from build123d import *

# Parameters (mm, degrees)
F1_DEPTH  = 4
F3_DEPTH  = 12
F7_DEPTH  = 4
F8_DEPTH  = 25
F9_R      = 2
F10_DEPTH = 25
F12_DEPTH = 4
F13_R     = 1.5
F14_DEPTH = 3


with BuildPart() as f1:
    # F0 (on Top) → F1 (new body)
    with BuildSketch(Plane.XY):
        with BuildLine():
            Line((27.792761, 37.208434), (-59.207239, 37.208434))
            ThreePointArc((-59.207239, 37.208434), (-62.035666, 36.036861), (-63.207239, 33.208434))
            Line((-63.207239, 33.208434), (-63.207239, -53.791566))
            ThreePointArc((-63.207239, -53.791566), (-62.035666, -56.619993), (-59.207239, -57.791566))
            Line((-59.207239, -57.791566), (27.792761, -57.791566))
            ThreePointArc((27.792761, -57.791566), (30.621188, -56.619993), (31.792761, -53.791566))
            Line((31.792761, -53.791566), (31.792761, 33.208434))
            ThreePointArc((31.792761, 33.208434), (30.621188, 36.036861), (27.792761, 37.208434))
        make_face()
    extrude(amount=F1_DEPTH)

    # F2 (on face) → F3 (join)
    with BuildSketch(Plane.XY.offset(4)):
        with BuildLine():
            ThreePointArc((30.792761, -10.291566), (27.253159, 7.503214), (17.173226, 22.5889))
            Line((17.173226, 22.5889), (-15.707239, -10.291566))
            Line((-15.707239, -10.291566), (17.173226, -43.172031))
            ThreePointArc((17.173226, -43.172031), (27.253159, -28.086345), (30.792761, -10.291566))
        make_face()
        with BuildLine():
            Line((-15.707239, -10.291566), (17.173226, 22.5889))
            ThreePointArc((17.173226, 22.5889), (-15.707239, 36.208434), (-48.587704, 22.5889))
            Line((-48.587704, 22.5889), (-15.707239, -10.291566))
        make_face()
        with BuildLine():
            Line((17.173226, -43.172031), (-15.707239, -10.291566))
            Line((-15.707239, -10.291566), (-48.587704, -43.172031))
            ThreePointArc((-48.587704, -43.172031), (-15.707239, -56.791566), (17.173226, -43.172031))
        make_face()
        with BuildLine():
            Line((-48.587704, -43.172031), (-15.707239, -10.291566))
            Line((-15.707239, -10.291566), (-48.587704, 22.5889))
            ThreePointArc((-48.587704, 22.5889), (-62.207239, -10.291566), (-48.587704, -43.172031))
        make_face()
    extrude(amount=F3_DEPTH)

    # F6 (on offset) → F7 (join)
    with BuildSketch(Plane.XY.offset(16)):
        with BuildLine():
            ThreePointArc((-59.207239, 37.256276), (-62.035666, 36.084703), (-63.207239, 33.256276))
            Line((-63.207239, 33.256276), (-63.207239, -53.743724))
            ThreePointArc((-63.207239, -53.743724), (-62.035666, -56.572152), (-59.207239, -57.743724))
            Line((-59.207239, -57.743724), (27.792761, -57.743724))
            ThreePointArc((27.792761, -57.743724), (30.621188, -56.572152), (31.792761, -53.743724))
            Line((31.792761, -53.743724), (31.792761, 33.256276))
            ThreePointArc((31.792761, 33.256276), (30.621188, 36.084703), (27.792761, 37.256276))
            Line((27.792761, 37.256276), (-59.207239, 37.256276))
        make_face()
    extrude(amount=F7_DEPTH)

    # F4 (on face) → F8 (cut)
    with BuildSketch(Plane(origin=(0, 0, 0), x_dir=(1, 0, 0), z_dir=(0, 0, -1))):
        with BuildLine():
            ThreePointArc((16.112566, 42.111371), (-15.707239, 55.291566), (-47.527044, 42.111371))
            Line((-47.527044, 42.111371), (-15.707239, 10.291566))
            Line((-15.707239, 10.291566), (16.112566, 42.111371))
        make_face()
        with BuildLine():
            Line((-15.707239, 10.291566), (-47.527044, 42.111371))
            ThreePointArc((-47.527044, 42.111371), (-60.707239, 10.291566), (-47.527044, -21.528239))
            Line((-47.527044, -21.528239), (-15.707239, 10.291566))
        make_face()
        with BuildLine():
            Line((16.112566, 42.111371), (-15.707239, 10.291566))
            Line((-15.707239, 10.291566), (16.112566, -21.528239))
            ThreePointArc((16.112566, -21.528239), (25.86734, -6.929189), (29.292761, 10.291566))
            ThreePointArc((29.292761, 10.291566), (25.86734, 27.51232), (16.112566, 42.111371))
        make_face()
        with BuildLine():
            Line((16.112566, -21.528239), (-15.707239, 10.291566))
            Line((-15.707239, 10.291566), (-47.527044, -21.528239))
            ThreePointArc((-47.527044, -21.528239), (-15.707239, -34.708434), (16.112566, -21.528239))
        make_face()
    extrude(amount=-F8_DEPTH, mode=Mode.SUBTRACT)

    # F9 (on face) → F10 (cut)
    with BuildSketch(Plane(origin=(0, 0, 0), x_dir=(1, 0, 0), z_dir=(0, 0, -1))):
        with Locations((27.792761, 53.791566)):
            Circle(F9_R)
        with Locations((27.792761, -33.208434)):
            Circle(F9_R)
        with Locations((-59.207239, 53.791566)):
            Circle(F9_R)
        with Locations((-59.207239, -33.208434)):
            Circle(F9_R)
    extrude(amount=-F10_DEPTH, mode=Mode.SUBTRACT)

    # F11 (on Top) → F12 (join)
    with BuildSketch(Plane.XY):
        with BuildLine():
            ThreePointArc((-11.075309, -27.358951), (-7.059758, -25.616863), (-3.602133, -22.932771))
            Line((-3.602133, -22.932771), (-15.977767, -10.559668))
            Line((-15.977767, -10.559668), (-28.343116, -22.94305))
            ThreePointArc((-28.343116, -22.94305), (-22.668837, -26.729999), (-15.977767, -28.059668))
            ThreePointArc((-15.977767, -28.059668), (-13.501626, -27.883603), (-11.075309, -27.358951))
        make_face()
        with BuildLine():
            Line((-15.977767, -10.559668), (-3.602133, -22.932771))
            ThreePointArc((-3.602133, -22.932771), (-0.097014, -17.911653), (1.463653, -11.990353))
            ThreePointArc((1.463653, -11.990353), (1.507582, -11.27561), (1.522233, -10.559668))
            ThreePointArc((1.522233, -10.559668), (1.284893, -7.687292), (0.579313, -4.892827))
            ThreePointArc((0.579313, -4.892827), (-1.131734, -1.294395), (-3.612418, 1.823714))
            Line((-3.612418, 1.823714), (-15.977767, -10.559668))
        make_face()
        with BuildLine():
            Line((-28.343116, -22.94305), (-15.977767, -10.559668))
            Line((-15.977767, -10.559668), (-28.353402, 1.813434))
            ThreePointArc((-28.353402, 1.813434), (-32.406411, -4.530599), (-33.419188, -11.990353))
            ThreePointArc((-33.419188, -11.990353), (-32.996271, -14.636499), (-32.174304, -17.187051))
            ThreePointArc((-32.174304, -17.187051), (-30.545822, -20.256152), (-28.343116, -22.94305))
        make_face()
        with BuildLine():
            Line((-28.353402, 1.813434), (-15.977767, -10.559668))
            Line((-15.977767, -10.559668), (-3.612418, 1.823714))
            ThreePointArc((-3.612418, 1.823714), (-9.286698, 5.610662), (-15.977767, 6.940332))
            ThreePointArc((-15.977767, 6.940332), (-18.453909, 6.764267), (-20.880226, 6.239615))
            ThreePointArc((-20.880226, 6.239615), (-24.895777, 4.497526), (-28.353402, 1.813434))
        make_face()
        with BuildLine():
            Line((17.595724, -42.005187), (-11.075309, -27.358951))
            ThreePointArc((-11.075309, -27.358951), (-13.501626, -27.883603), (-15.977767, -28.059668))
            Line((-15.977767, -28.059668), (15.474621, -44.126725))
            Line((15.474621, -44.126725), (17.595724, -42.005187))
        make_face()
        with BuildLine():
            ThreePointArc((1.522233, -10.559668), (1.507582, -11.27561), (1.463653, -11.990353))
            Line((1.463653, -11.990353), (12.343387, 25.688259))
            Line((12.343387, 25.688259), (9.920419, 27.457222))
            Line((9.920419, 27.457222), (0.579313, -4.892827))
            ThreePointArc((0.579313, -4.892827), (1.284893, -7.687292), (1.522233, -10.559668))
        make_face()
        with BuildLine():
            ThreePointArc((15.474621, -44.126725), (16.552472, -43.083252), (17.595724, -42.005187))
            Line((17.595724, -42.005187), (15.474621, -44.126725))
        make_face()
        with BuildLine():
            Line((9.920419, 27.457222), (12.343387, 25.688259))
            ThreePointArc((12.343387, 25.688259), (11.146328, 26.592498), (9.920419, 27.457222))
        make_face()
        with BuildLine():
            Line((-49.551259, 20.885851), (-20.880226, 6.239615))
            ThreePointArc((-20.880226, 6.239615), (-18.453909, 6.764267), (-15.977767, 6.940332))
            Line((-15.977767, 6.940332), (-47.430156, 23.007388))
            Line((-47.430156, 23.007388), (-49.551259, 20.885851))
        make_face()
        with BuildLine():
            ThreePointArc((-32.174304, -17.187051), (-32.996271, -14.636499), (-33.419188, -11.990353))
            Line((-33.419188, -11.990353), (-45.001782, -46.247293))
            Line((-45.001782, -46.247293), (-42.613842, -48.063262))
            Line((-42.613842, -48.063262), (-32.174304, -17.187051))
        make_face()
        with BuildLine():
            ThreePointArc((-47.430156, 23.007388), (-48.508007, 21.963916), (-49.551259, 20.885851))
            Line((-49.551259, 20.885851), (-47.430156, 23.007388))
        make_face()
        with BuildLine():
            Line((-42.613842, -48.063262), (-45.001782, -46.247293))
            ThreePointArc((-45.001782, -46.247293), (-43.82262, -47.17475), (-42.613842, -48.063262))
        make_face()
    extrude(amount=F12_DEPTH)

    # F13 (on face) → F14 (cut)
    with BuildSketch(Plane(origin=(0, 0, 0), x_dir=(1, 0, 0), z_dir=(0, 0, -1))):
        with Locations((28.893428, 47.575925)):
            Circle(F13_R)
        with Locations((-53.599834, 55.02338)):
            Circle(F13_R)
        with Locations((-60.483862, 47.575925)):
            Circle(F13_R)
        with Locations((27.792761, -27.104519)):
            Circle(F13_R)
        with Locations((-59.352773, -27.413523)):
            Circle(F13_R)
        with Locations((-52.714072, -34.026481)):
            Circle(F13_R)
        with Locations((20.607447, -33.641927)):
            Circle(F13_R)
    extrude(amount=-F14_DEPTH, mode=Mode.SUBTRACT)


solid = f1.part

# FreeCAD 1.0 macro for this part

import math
import FreeCAD as App
import Part
import Sketcher

doc = App.newDocument("Part")
body = doc.addObject("PartDesign::Body", "Body")

# Sketch on XY plane
sketch1 = body.newObject("Sketcher::SketchObject", "Sketch")
sketch1.AttachmentSupport = (doc.getObject("XY_Plane"), [""])
sketch1.MapMode = "FlatFace"
sketch1.addGeometry([
    Part.LineSegment(App.Vector(27.792761, 37.208434, 0), App.Vector(-59.207239, 37.208434, 0)),  # 0
    Part.ArcOfCircle(Part.Circle(App.Vector(-59.207239, 33.208434, 0), App.Vector(0, 0, 1), 4), math.radians(90.000006), math.radians(179.999994)),  # 1
    Part.LineSegment(App.Vector(-63.207239, 33.208434, 0), App.Vector(-63.207239, -53.791566, 0)),  # 2
    Part.ArcOfCircle(Part.Circle(App.Vector(-59.207239, -53.791566, 0), App.Vector(0, 0, 1), 4), math.radians(-179.999994), math.radians(-90.000006)),  # 3
    Part.LineSegment(App.Vector(-59.207239, -57.791566, 0), App.Vector(27.792761, -57.791566, 0)),  # 4
    Part.ArcOfCircle(Part.Circle(App.Vector(27.792761, -53.791566, 0), App.Vector(0, 0, 1), 4), math.radians(-89.999994), math.radians(-0.000006)),  # 5
    Part.LineSegment(App.Vector(31.792761, -53.791566, 0), App.Vector(31.792761, 33.208434, 0)),  # 6
    Part.ArcOfCircle(Part.Circle(App.Vector(27.792761, 33.208434, 0), App.Vector(0, 0, 1), 4), math.radians(0.000006), math.radians(89.999994)),  # 7
], False)
sketch1.addConstraint([
    Sketcher.Constraint("Tangent", 0, 2, 1, 1),
    Sketcher.Constraint("Tangent", 1, 2, 2, 1),
    Sketcher.Constraint("Tangent", 2, 2, 3, 1),
    Sketcher.Constraint("Tangent", 3, 2, 4, 1),
    Sketcher.Constraint("Tangent", 4, 2, 5, 1),
    Sketcher.Constraint("Tangent", 5, 2, 6, 1),
    Sketcher.Constraint("Tangent", 6, 2, 7, 1),
    Sketcher.Constraint("Tangent", 7, 2, 0, 1),
    Sketcher.Constraint("Horizontal", 0),
    Sketcher.Constraint("Vertical", 2),
    Sketcher.Constraint("Horizontal", 4),
    Sketcher.Constraint("Vertical", 6),
    Sketcher.Constraint("Equal", 1, 3),
    Sketcher.Constraint("Equal", 3, 5),
    Sketcher.Constraint("Equal", 5, 7),
    Sketcher.Constraint("Equal", 4, 2),
    Sketcher.Constraint("Radius", 1, 4.0),
    Sketcher.Constraint("DistanceX", 0, 2, 0, 1, 87.0),
    Sketcher.Constraint("DistanceX", 1, 3, -1, 1, 59.207239),
    Sketcher.Constraint("DistanceY", -1, 1, 1, 3, 33.208434),
])
pad1 = body.newObject("PartDesign::Pad", "Pad")
pad1.Profile = sketch1
pad1.Length = 4

# Sketch on XY plane
sketch2 = body.newObject("Sketcher::SketchObject", "Sketch001")
sketch2.AttachmentSupport = (doc.getObject("XY_Plane"), [""])
sketch2.MapMode = "FlatFace"
sketch2.AttachmentOffset = App.Placement(App.Vector(0, 0, 4), App.Rotation())
sketch2.addGeometry([
    Part.ArcOfCircle(Part.Circle(App.Vector(-15.707242, -10.291567, 0), App.Vector(0, 0, 1), 46.500003), math.radians(0.000001), math.radians(44.999999)),  # 0
    Part.ArcOfCircle(Part.Circle(App.Vector(-15.707239, -10.291567, 0), App.Vector(0, 0, 1), 46.500001), math.radians(45.000002), math.radians(134.999998)),  # 1
    Part.ArcOfCircle(Part.Circle(App.Vector(-15.707239, -10.291566, 0), App.Vector(0, 0, 1), 46.5), math.radians(134.999999), math.radians(225.000001)),  # 2
    Part.ArcOfCircle(Part.Circle(App.Vector(-15.707239, -10.291568, 0), App.Vector(0, 0, 1), 46.499998), math.radians(-135.000001), math.radians(-44.999999)),  # 3
    Part.ArcOfCircle(Part.Circle(App.Vector(-15.707242, -10.291564, 0), App.Vector(0, 0, 1), 46.500003), math.radians(-44.999999), math.radians(-0.000002)),  # 4
], False)
sketch2.addConstraint([
    Sketcher.Constraint("Tangent", 0, 2, 1, 1),
    Sketcher.Constraint("Tangent", 1, 2, 2, 1),
    Sketcher.Constraint("Tangent", 2, 2, 3, 1),
    Sketcher.Constraint("Tangent", 3, 2, 4, 1),
    Sketcher.Constraint("Tangent", 4, 2, 0, 1),
    Sketcher.Constraint("Coincident", 2, 3, 0, 3),
    Sketcher.Constraint("Horizontal", 0, 2, 1, 2),
    Sketcher.Constraint("Horizontal", 2, 2, 3, 2),
    Sketcher.Constraint("Horizontal", 3, 3, 4, 2),
    Sketcher.Constraint("Vertical", 1, 2, 2, 2),
    Sketcher.Constraint("Radius", 1, 46.500001),
    Sketcher.Constraint("DistanceY", -1, 1, 0, 2, 22.5889),
    Sketcher.Constraint("DistanceX", 0, 3, -1, 1, 15.707242),
    Sketcher.Constraint("DistanceY", 2, 2, -1, 1, 43.172031),
])
pad2 = body.newObject("PartDesign::Pad", "Pad001")
pad2.Profile = sketch2
pad2.Length = 12

# Sketch on XY plane
sketch3 = body.newObject("Sketcher::SketchObject", "Sketch002")
sketch3.AttachmentSupport = (doc.getObject("XY_Plane"), [""])
sketch3.MapMode = "FlatFace"
sketch3.AttachmentOffset = App.Placement(App.Vector(0, 0, 16), App.Rotation())
sketch3.addGeometry([
    Part.ArcOfCircle(Part.Circle(App.Vector(-59.207239, 33.256276, 0), App.Vector(0, 0, 1), 4), math.radians(90.000006), math.radians(179.999994)),  # 0
    Part.LineSegment(App.Vector(-63.207239, 33.256276, 0), App.Vector(-63.207239, -53.743724, 0)),  # 1
    Part.ArcOfCircle(Part.Circle(App.Vector(-59.20724, -53.743725, 0), App.Vector(0, 0, 1), 3.999999), math.radians(179.999982), math.radians(270.000018)),  # 2
    Part.LineSegment(App.Vector(-59.207239, -57.743724, 0), App.Vector(27.792761, -57.743724, 0)),  # 3
    Part.ArcOfCircle(Part.Circle(App.Vector(27.792762, -53.743725, 0), App.Vector(0, 0, 1), 3.999999), math.radians(-90.000018), math.radians(0.000018)),  # 4
    Part.LineSegment(App.Vector(31.792761, -53.743724, 0), App.Vector(31.792761, 33.256276, 0)),  # 5
    Part.ArcOfCircle(Part.Circle(App.Vector(27.792761, 33.256276, 0), App.Vector(0, 0, 1), 4), math.radians(0.000006), math.radians(89.999994)),  # 6
    Part.LineSegment(App.Vector(27.792761, 37.256276, 0), App.Vector(-59.207239, 37.256276, 0)),  # 7
], False)
sketch3.addConstraint([
    Sketcher.Constraint("Tangent", 0, 2, 1, 1),
    Sketcher.Constraint("Tangent", 1, 2, 2, 1),
    Sketcher.Constraint("Tangent", 2, 2, 3, 1),
    Sketcher.Constraint("Tangent", 3, 2, 4, 1),
    Sketcher.Constraint("Tangent", 4, 2, 5, 1),
    Sketcher.Constraint("Tangent", 5, 2, 6, 1),
    Sketcher.Constraint("Tangent", 6, 2, 7, 1),
    Sketcher.Constraint("Tangent", 7, 2, 0, 1),
    Sketcher.Constraint("Vertical", 1),
    Sketcher.Constraint("Horizontal", 3),
    Sketcher.Constraint("Vertical", 5),
    Sketcher.Constraint("Horizontal", 7),
    Sketcher.Constraint("Equal", 0, 2),
    Sketcher.Constraint("Equal", 2, 4),
    Sketcher.Constraint("Equal", 4, 6),
    Sketcher.Constraint("Equal", 7, 1),
    Sketcher.Constraint("Radius", 0, 4.0),
    Sketcher.Constraint("DistanceX", 3, 1, 3, 2, 87.0),
    Sketcher.Constraint("DistanceX", 0, 3, -1, 1, 59.207239),
    Sketcher.Constraint("DistanceY", -1, 1, 0, 3, 33.256276),
])
pad3 = body.newObject("PartDesign::Pad", "Pad002")
pad3.Profile = sketch3
pad3.Length = 4

# Sketch on XY plane
sketch4 = body.newObject("Sketcher::SketchObject", "Sketch003")
sketch4.AttachmentSupport = (doc.getObject("XY_Plane"), [""])
sketch4.MapMode = "FlatFace"
sketch4.addGeometry([
    Part.ArcOfCircle(Part.Circle(App.Vector(-15.707239, -10.291567, 0), App.Vector(0, 0, 1), 44.999999), math.radians(-135.000001), math.radians(-44.999999)),  # 0
    Part.ArcOfCircle(Part.Circle(App.Vector(-15.70724, -10.291566, 0), App.Vector(0, 0, 1), 44.999999), math.radians(134.999999), math.radians(225.000001)),  # 1
    Part.ArcOfCircle(Part.Circle(App.Vector(-15.707239, -10.291565, 0), App.Vector(0, 0, 1), 44.999999), math.radians(44.999999), math.radians(135.000001)),  # 2
    Part.ArcOfCircle(Part.Circle(App.Vector(-15.707235, -10.291564, 0), App.Vector(0, 0, 1), 44.999996), math.radians(-0.000002), math.radians(45.000003)),  # 3
    Part.ArcOfCircle(Part.Circle(App.Vector(-15.707239, -10.291566, 0), App.Vector(0, 0, 1), 45), math.radians(-45), math.radians(-0.000001)),  # 4
], False)
sketch4.addConstraint([
    Sketcher.Constraint("Tangent", 0, 1, 1, 2),
    Sketcher.Constraint("Tangent", 1, 1, 2, 2),
    Sketcher.Constraint("Tangent", 2, 1, 3, 2),
    Sketcher.Constraint("Tangent", 3, 1, 4, 2),
    Sketcher.Constraint("Tangent", 4, 1, 0, 2),
    Sketcher.Constraint("Coincident", 2, 3, 0, 3),
    Sketcher.Constraint("Horizontal", 1, 1, 2, 1),
    Sketcher.Constraint("Horizontal", 4, 3, 3, 1),
    Sketcher.Constraint("Horizontal", 0, 1, 4, 1),
    Sketcher.Constraint("Vertical", 0, 1, 1, 1),
    Sketcher.Constraint("Radius", 0, 44.999999),
    Sketcher.Constraint("DistanceX", 3, 3, 2, 1, 31.819801),
    Sketcher.Constraint("DistanceX", 0, 3, -1, 1, 15.707239),
    Sketcher.Constraint("DistanceY", 0, 1, -1, 1, 42.111371),
])
pocket1 = body.newObject("PartDesign::Pocket", "Pocket")
pocket1.Profile = sketch4
pocket1.Length = 25
pocket1.Reversed = True

# Sketch on XY plane
sketch5 = body.newObject("Sketcher::SketchObject", "Sketch004")
sketch5.AttachmentSupport = (doc.getObject("XY_Plane"), [""])
sketch5.MapMode = "FlatFace"
sketch5.addGeometry([
    Part.Circle(App.Vector(27.792761, -53.791566, 0), App.Vector(0, 0, 1), 2),
    Part.Circle(App.Vector(27.792761, 33.208434, 0), App.Vector(0, 0, 1), 2),
    Part.Circle(App.Vector(-59.207239, -53.791566, 0), App.Vector(0, 0, 1), 2),
    Part.Circle(App.Vector(-59.207239, 33.208434, 0), App.Vector(0, 0, 1), 2),
], False)
sketch5.addConstraint([
    Sketcher.Constraint("Equal", 0, 1),
    Sketcher.Constraint("Equal", 1, 2),
    Sketcher.Constraint("Equal", 2, 3),
    Sketcher.Constraint("Horizontal", 0, 3, 2, 3),
    Sketcher.Constraint("Horizontal", 1, 3, 3, 3),
    Sketcher.Constraint("Vertical", 0, 3, 1, 3),
    Sketcher.Constraint("Vertical", 2, 3, 3, 3),
    Sketcher.Constraint("Diameter", 0, 4.0),
    Sketcher.Constraint("DistanceY", 0, 3, 1, 3, 87.0),
    Sketcher.Constraint("DistanceX", 2, 3, 0, 3, 87.0),
    Sketcher.Constraint("DistanceX", -1, 1, 0, 3, 27.792761),
    Sketcher.Constraint("DistanceY", 0, 3, -1, 1, 53.791566),
])
pocket2 = body.newObject("PartDesign::Pocket", "Pocket001")
pocket2.Profile = sketch5
pocket2.Length = 25
pocket2.Reversed = True

# Sketch on XY plane
sketch6 = body.newObject("Sketcher::SketchObject", "Sketch005")
sketch6.AttachmentSupport = (doc.getObject("XY_Plane"), [""])
sketch6.MapMode = "FlatFace"
sketch6.addGeometry([
    Part.ArcOfCircle(Part.Circle(App.Vector(-15.977764, -10.559673, 0), App.Vector(0, 0, 1), 17.499994), math.radians(-73.731416), math.radians(-44.994134)),  # 0
    Part.ArcOfCircle(Part.Circle(App.Vector(-15.977764, -10.559669, 0), App.Vector(0, 0, 1), 17.499997), math.radians(-44.994143), math.radians(-4.689356)),  # 1
    Part.LineSegment(App.Vector(1.463653, -11.990353, 0), App.Vector(12.343387, 25.688259, 0)),  # 2
    Part.ArcOfCircle(Part.Circle(App.Vector(-15.977783, -10.559693, 0), App.Vector(0, 0, 1), 46.00003), math.radians(51.998856), math.radians(55.736198)),  # 3
    Part.LineSegment(App.Vector(9.920419, 27.457222, 0), App.Vector(0.579313, -4.892827, 0)),  # 4
    Part.ArcOfCircle(Part.Circle(App.Vector(-15.977782, -10.559676, 0), App.Vector(0, 0, 1), 17.500017), math.radians(18.894078), math.radians(45.041731)),  # 5
    Part.ArcOfCircle(Part.Circle(App.Vector(-15.977771, -10.559677, 0), App.Vector(0, 0, 1), 17.500009), math.radians(45.041761), math.radians(89.999988)),  # 6
    Part.LineSegment(App.Vector(-15.977767, 6.940332, 0), App.Vector(-47.430156, 23.007388, 0)),  # 7
    Part.ArcOfCircle(Part.Circle(App.Vector(-15.977831, -10.559606, 0), App.Vector(0, 0, 1), 45.999911), math.radians(133.137186), math.radians(136.874536)),  # 8
    Part.LineSegment(App.Vector(-49.551259, 20.885851, 0), App.Vector(-20.880226, 6.239615, 0)),  # 9
    Part.ArcOfCircle(Part.Circle(App.Vector(-15.977761, -10.559676, 0), App.Vector(0, 0, 1), 17.50001), math.radians(106.268602), math.radians(135.00586)),  # 10
    Part.ArcOfCircle(Part.Circle(App.Vector(-15.977769, -10.559668, 0), App.Vector(0, 0, 1), 17.499999), math.radians(135.005858), math.radians(184.689359)),  # 11
    Part.LineSegment(App.Vector(-33.419188, -11.990353, 0), App.Vector(-45.001782, -46.247293, 0)),  # 12
    Part.ArcOfCircle(Part.Circle(App.Vector(-15.97812, -10.560141, 0), App.Vector(0, 0, 1), 45.999411), math.radians(-129.120782), math.radians(-125.38339)),  # 13
    Part.LineSegment(App.Vector(-42.613842, -48.063262, 0), App.Vector(-32.174304, -17.187051, 0)),  # 14
    Part.ArcOfCircle(Part.Circle(App.Vector(-15.977789, -10.559681, 0), App.Vector(0, 0, 1), 17.499975), math.radians(-157.746363), math.radians(-134.958233)),  # 15
    Part.ArcOfCircle(Part.Circle(App.Vector(-15.97777, -10.559675, 0), App.Vector(0, 0, 1), 17.499993), math.radians(-134.95826), math.radians(-89.99999)),  # 16
    Part.LineSegment(App.Vector(-15.977767, -28.059668, 0), App.Vector(15.474621, -44.126725, 0)),  # 17
    Part.ArcOfCircle(Part.Circle(App.Vector(-15.978197, -10.559253, 0), App.Vector(0, 0, 1), 46.000597), math.radians(-46.862773), math.radians(-43.125478)),  # 18
    Part.LineSegment(App.Vector(17.595724, -42.005187, 0), App.Vector(-11.075309, -27.358951, 0)),  # 19
], False)
sketch6.addConstraint([
    Sketcher.Constraint("Coincident", 0, 2, 1, 1),
    Sketcher.Constraint("Coincident", 1, 2, 2, 1),
    Sketcher.Constraint("Coincident", 2, 2, 3, 1),
    Sketcher.Constraint("Coincident", 3, 2, 4, 1),
    Sketcher.Constraint("Coincident", 4, 2, 5, 1),
    Sketcher.Constraint("Coincident", 5, 2, 6, 1),
    Sketcher.Constraint("Coincident", 6, 2, 7, 1),
    Sketcher.Constraint("Coincident", 7, 2, 8, 1),
    Sketcher.Constraint("Coincident", 8, 2, 9, 1),
    Sketcher.Constraint("Coincident", 9, 2, 10, 1),
    Sketcher.Constraint("Coincident", 10, 2, 11, 1),
    Sketcher.Constraint("Coincident", 11, 2, 12, 1),
    Sketcher.Constraint("Coincident", 12, 2, 13, 1),
    Sketcher.Constraint("Coincident", 13, 2, 14, 1),
    Sketcher.Constraint("Coincident", 14, 2, 15, 1),
    Sketcher.Constraint("Coincident", 15, 2, 16, 1),
    Sketcher.Constraint("Coincident", 16, 2, 17, 1),
    Sketcher.Constraint("Coincident", 17, 2, 18, 1),
    Sketcher.Constraint("Coincident", 18, 2, 19, 1),
    Sketcher.Constraint("Coincident", 19, 2, 0, 1),
    Sketcher.Constraint("Coincident", 1, 3, 0, 3),
    Sketcher.Constraint("Coincident", 6, 3, 0, 3),
    Sketcher.Constraint("Coincident", 10, 3, 0, 3),
    Sketcher.Constraint("Coincident", 11, 3, 0, 3),
    Sketcher.Constraint("Coincident", 15, 3, 5, 3),
    Sketcher.Constraint("Coincident", 16, 3, 0, 3),
    Sketcher.Constraint("Radius", 11, 17.499999),
    Sketcher.Constraint("DistanceY", 11, 3, 6, 2, 17.5),
    Sketcher.Constraint("Radius", 3, 46.00003),
    Sketcher.Constraint("Radius", 8, 45.999911),
    Sketcher.Constraint("Radius", 13, 45.999411),
    Sketcher.Constraint("Radius", 0, 17.499994),
    Sketcher.Constraint("Radius", 5, 17.500017),
    Sketcher.Constraint("Radius", 15, 17.499975),
    Sketcher.Constraint("Radius", 18, 46.000597),
    Sketcher.Constraint("DistanceX", 12, 2, 3, 3, 29.023999),
    Sketcher.Constraint("DistanceX", 12, 2, 5, 3, 29.024),
    Sketcher.Constraint("DistanceY", 15, 2, 14, 2, 5.755999),
    Sketcher.Constraint("DistanceX", 10, 2, -1, 1, 28.353402),
    Sketcher.Constraint("DistanceY", 10, 2, 6, 2, 5.126898),
    Sketcher.Constraint("DistanceY", 11, 2, 18, 3, 1.4311),
    Sketcher.Constraint("DistanceX", 11, 2, 15, 3, 17.441399),
    Sketcher.Constraint("DistanceY", 12, 2, 3, 3, 35.6876),
    Sketcher.Constraint("DistanceY", 17, 2, 4, 2, 39.233898),
    Sketcher.Constraint("Distance", 4, 33.671678),
    Sketcher.Constraint("DistanceY", 1, 3, -1, 1, 10.559669),
    Sketcher.Constraint("DistanceX", 8, 3, -1, 1, 15.977831),
    Sketcher.Constraint("DistanceX", 13, 3, -1, 1, 15.97812),
    Sketcher.Constraint("DistanceY", 13, 3, -1, 1, 10.560141),
    Sketcher.Constraint("DistanceX", 15, 3, -1, 1, 15.977789),
    Sketcher.Constraint("DistanceY", 0, 2, -1, 1, 22.932771),
    Sketcher.Constraint("DistanceY", -1, 1, 2, 2, 25.688259),
    Sketcher.Constraint("DistanceX", -1, 1, 3, 2, 9.920419),
    Sketcher.Constraint("DistanceX", 8, 2, -1, 1, 49.551259),
    Sketcher.Constraint("DistanceY", -1, 1, 8, 2, 20.885851),
    Sketcher.Constraint("DistanceY", 14, 2, -1, 1, 17.187051),
    Sketcher.Constraint("DistanceX", -1, 1, 17, 2, 15.474621),
    Sketcher.Constraint("DistanceX", 19, 2, -1, 1, 11.075309),
    Sketcher.Constraint("DistanceY", 0, 2, 1, 2, 10.942418),
    Sketcher.Constraint("DistanceX", 5, 2, 4, 2, 4.191731),
    Sketcher.Constraint("DistanceX", 6, 2, 5, 2, 12.365349),
    Sketcher.Constraint("DistanceX", 7, 2, 6, 2, 31.452389),
    Sketcher.Constraint("DistanceX", 9, 2, 6, 2, 4.902459),
    Sketcher.Constraint("DistanceX", 12, 2, 13, 2, 2.38794),
    Sketcher.Constraint("DistanceX", 15, 2, 16, 2, 12.365349),
    Sketcher.Constraint("DistanceX", 1, 2, 18, 2, 16.132071),
])
pad4 = body.newObject("PartDesign::Pad", "Pad003")
pad4.Profile = sketch6
pad4.Length = 4

# Sketch on XY plane
sketch7 = body.newObject("Sketcher::SketchObject", "Sketch006")
sketch7.AttachmentSupport = (doc.getObject("XY_Plane"), [""])
sketch7.MapMode = "FlatFace"
sketch7.addGeometry([
    Part.Circle(App.Vector(28.893428, -47.575925, 0), App.Vector(0, 0, 1), 1.5),  # 0
    Part.Circle(App.Vector(-53.599834, -55.02338, 0), App.Vector(0, 0, 1), 1.5),  # 1
    Part.Circle(App.Vector(-60.483862, -47.575925, 0), App.Vector(0, 0, 1), 1.5),  # 2
    Part.Circle(App.Vector(27.792761, 27.104519, 0), App.Vector(0, 0, 1), 1.5),  # 3
    Part.Circle(App.Vector(-59.352773, 27.413523, 0), App.Vector(0, 0, 1), 1.5),  # 4
    Part.Circle(App.Vector(-52.714072, 34.026481, 0), App.Vector(0, 0, 1), 1.5),  # 5
    Part.Circle(App.Vector(20.607447, 33.641927, 0), App.Vector(0, 0, 1), 1.5),  # 6
], False)
sketch7.addConstraint([
    Sketcher.Constraint("Equal", 0, 1),
    Sketcher.Constraint("Equal", 1, 2),
    Sketcher.Constraint("Equal", 2, 3),
    Sketcher.Constraint("Equal", 3, 4),
    Sketcher.Constraint("Equal", 4, 5),
    Sketcher.Constraint("Equal", 5, 6),
    Sketcher.Constraint("Horizontal", 0, 3, 2, 3),
    Sketcher.Constraint("Diameter", 0, 3.0),
    Sketcher.Constraint("DistanceY", 1, 3, 3, 3, 82.127899),
    Sketcher.Constraint("DistanceX", 4, 3, 0, 3, 88.246201),
    Sketcher.Constraint("DistanceX", 4, 3, 5, 3, 6.638701),
    Sketcher.Constraint("DistanceX", -1, 1, 0, 3, 28.893428),
    Sketcher.Constraint("DistanceY", 1, 3, -1, 1, 55.02338),
    Sketcher.Constraint("DistanceX", -1, 1, 3, 3, 27.792761),
    Sketcher.Constraint("DistanceY", -1, 1, 5, 3, 34.026481),
    Sketcher.Constraint("DistanceX", 1, 3, 0, 3, 82.493262),
    Sketcher.Constraint("DistanceX", 2, 3, 1, 3, 6.884028),
    Sketcher.Constraint("DistanceY", 3, 3, 6, 3, 6.537408),
    Sketcher.Constraint("DistanceX", 5, 3, 6, 3, 73.321519),
    Sketcher.Constraint("DistanceY", 0, 3, 6, 3, 81.217852),
    Sketcher.Constraint("DistanceY", -1, 1, 4, 3, 27.413523),
])
pocket3 = body.newObject("PartDesign::Pocket", "Pocket002")
pocket3.Profile = sketch7
pocket3.Length = 3
pocket3.Reversed = True

doc.recompute()
